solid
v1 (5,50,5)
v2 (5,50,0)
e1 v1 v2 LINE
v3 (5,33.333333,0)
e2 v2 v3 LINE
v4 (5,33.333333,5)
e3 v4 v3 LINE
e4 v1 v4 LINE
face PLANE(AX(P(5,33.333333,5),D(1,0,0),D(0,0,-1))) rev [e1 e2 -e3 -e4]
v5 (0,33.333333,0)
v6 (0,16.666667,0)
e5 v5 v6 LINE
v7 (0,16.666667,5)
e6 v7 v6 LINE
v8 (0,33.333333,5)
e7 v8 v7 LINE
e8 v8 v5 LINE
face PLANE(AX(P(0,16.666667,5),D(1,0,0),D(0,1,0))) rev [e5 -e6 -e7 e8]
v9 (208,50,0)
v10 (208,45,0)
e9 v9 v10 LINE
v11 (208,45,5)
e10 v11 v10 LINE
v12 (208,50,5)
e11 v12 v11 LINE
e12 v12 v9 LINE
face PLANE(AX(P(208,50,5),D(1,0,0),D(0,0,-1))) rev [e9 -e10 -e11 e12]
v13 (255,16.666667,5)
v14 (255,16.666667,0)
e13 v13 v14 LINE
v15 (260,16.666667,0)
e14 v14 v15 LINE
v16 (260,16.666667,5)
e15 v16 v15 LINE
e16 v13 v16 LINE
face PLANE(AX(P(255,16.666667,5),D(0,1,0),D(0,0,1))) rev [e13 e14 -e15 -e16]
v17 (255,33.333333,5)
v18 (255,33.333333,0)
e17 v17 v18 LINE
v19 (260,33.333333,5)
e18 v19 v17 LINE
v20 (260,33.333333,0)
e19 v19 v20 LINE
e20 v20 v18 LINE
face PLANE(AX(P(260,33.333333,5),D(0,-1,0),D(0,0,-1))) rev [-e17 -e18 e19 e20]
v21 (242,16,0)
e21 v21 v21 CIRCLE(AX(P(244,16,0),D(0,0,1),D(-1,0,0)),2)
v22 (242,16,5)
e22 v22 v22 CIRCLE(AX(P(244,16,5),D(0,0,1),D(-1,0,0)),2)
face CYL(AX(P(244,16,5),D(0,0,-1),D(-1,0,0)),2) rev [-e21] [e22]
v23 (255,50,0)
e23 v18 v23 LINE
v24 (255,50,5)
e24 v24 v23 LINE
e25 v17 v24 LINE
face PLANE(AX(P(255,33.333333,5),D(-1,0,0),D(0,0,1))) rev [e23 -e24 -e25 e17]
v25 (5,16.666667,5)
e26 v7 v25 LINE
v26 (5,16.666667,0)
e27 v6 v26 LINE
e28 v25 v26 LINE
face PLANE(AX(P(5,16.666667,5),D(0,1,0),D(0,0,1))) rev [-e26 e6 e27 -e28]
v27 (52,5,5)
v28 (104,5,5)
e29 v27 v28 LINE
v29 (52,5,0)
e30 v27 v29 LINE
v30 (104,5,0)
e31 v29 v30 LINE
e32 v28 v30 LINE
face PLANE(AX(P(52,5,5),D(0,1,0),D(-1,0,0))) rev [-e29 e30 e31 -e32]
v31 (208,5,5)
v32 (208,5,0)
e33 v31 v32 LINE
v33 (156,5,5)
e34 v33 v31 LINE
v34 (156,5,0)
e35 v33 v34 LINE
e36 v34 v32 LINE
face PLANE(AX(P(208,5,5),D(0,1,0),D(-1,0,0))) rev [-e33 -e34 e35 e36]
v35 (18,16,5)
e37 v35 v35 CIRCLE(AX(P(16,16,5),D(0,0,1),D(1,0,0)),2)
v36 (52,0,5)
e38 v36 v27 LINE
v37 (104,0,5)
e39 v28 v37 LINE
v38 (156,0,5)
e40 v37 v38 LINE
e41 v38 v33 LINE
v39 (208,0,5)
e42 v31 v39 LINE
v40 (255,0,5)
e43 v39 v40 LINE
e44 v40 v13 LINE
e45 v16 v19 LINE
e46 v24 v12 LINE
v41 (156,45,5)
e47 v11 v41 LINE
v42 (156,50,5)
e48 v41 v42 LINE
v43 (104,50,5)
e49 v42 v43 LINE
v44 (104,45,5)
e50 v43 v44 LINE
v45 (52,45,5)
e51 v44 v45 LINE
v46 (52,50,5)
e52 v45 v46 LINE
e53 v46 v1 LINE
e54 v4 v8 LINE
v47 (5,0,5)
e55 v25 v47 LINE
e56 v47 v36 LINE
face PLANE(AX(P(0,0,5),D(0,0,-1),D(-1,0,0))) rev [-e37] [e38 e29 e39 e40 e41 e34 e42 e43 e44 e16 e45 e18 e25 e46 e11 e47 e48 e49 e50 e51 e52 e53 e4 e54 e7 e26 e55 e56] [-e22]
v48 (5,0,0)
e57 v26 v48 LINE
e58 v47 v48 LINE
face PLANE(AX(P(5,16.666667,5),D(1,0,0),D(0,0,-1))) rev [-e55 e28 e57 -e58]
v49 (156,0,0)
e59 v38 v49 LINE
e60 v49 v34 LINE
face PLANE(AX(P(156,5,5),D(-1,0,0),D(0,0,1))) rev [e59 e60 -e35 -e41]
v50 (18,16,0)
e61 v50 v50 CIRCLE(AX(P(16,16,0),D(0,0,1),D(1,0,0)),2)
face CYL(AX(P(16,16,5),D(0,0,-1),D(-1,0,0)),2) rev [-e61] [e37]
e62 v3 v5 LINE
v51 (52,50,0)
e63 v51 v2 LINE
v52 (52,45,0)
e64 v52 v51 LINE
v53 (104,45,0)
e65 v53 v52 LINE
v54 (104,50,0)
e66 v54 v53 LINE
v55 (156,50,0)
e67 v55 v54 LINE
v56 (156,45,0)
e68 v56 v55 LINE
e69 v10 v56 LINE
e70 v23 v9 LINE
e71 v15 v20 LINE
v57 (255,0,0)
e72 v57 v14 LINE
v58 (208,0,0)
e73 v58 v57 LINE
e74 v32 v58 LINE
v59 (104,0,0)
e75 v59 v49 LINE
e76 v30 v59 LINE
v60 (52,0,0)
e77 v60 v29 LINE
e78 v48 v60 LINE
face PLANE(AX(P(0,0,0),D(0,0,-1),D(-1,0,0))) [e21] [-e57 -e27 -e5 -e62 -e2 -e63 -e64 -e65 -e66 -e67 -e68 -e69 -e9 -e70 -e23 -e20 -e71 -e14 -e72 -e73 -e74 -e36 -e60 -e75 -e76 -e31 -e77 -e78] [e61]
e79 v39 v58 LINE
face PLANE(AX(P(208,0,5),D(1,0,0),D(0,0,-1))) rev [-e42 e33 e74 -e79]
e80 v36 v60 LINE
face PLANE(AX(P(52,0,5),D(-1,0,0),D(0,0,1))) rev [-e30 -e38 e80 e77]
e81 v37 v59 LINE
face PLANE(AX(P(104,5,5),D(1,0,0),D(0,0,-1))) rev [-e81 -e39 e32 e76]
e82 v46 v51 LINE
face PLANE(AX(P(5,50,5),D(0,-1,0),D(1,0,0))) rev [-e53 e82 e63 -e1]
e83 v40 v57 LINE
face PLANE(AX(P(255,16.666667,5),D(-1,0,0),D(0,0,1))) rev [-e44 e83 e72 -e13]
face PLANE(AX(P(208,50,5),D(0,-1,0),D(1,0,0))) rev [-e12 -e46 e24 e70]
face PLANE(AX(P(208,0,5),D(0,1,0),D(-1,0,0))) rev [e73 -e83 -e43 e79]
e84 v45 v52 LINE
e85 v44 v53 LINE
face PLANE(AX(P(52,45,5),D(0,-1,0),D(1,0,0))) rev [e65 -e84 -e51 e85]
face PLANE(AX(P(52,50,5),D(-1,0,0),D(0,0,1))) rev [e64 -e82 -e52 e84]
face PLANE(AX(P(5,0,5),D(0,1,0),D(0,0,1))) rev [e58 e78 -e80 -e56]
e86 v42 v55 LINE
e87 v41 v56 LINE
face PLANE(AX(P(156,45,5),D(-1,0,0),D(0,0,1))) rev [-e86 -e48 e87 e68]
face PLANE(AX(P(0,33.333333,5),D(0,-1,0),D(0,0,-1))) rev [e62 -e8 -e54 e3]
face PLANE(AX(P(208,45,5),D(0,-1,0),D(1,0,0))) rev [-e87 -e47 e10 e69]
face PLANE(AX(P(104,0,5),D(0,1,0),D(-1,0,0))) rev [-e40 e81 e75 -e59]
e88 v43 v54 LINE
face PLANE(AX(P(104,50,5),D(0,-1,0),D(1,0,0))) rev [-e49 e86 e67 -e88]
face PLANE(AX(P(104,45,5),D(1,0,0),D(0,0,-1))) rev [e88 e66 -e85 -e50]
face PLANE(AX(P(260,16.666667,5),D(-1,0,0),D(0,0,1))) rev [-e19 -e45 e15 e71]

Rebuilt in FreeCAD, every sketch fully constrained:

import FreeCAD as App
import Part
import Sketcher

V = App.Vector

doc = App.newDocument("Part")
body = doc.addObject("PartDesign::Body", "Body")

# Sketch on XY plane
sketch1 = body.newObject("Sketcher::SketchObject", "Sketch")
sketch1.AttachmentSupport = (doc.getObject("XY_Plane"), [""])
sketch1.MapMode = "FlatFace"
sketch1.addGeometry([
    Part.LineSegment(V(5, 33.3, 0), V(0, 33.3, 0)),  # 0
    Part.LineSegment(V(0, 33.3, 0), V(0, 16.7, 0)),  # 1
    Part.LineSegment(V(0, 16.7, 0), V(5, 16.7, 0)),  # 2
    Part.LineSegment(V(5, 16.7, 0), V(5, 0, 0)),  # 3
    Part.LineSegment(V(5, 0, 0), V(52, 0, 0)),  # 4
    Part.LineSegment(V(52, 0, 0), V(52, 5, 0)),  # 5
    Part.LineSegment(V(52, 5, 0), V(104, 5, 0)),  # 6
    Part.LineSegment(V(104, 5, 0), V(104, 0, 0)),  # 7
    Part.LineSegment(V(104, 0, 0), V(156, 0, 0)),  # 8
    Part.LineSegment(V(156, 0, 0), V(156, 5, 0)),  # 9
    Part.LineSegment(V(156, 5, 0), V(208, 5, 0)),  # 10
    Part.LineSegment(V(208, 5, 0), V(208, 0, 0)),  # 11
    Part.LineSegment(V(208, 0, 0), V(255, 0, 0)),  # 12
    Part.LineSegment(V(255, 0, 0), V(255, 16.7, 0)),  # 13
    Part.LineSegment(V(255, 16.7, 0), V(260, 16.7, 0)),  # 14
    Part.LineSegment(V(260, 16.7, 0), V(260, 33.3, 0)),  # 15
    Part.LineSegment(V(260, 33.3, 0), V(255, 33.3, 0)),  # 16
    Part.LineSegment(V(255, 33.3, 0), V(255, 50, 0)),  # 17
    Part.LineSegment(V(255, 50, 0), V(208, 50, 0)),  # 18
    Part.LineSegment(V(208, 50, 0), V(208, 45, 0)),  # 19
    Part.LineSegment(V(208, 45, 0), V(156, 45, 0)),  # 20
    Part.LineSegment(V(156, 45, 0), V(156, 50, 0)),  # 21
    Part.LineSegment(V(156, 50, 0), V(104, 50, 0)),  # 22
    Part.LineSegment(V(104, 50, 0), V(104, 45, 0)),  # 23
    Part.LineSegment(V(104, 45, 0), V(52, 45, 0)),  # 24
    Part.LineSegment(V(52, 45, 0), V(52, 50, 0)),  # 25
    Part.LineSegment(V(52, 50, 0), V(5, 50, 0)),  # 26
    Part.LineSegment(V(5, 50, 0), V(5, 33.3, 0)),  # 27
    Part.Circle(V(244, 16, 0), V(0, 0, 1), 2),  # 28
    Part.Circle(V(16, 16, 0), V(0, 0, 1), 2),  # 29
], False)
sketch1.addConstraint([
    Sketcher.Constraint("Coincident", 0, 2, 1, 1),
    Sketcher.Constraint("Coincident", 1, 2, 2, 1),
    Sketcher.Constraint("Coincident", 2, 2, 3, 1),
    Sketcher.Constraint("Coincident", 3, 2, 4, 1),
    Sketcher.Constraint("Coincident", 4, 2, 5, 1),
    Sketcher.Constraint("Coincident", 5, 2, 6, 1),
    Sketcher.Constraint("Coincident", 6, 2, 7, 1),
    Sketcher.Constraint("Coincident", 7, 2, 8, 1),
    Sketcher.Constraint("Coincident", 8, 2, 9, 1),
    Sketcher.Constraint("Coincident", 9, 2, 10, 1),
    Sketcher.Constraint("Coincident", 10, 2, 11, 1),
    Sketcher.Constraint("Coincident", 11, 2, 12, 1),
    Sketcher.Constraint("Coincident", 12, 2, 13, 1),
    Sketcher.Constraint("Coincident", 13, 2, 14, 1),
    Sketcher.Constraint("Coincident", 14, 2, 15, 1),
    Sketcher.Constraint("Coincident", 15, 2, 16, 1),
    Sketcher.Constraint("Coincident", 16, 2, 17, 1),
    Sketcher.Constraint("Coincident", 17, 2, 18, 1),
    Sketcher.Constraint("Coincident", 18, 2, 19, 1),
    Sketcher.Constraint("Coincident", 19, 2, 20, 1),
    Sketcher.Constraint("Coincident", 20, 2, 21, 1),
    Sketcher.Constraint("Coincident", 21, 2, 22, 1),
    Sketcher.Constraint("Coincident", 22, 2, 23, 1),
    Sketcher.Constraint("Coincident", 23, 2, 24, 1),
    Sketcher.Constraint("Coincident", 24, 2, 25, 1),
    Sketcher.Constraint("Coincident", 25, 2, 26, 1),
    Sketcher.Constraint("Coincident", 26, 2, 27, 1),
    Sketcher.Constraint("Coincident", 27, 2, 0, 1),
    Sketcher.Constraint("Horizontal", 0),
    Sketcher.Constraint("Vertical", 1),
    Sketcher.Constraint("Horizontal", 2),
    Sketcher.Constraint("Vertical", 3),
    Sketcher.Constraint("Horizontal", 4),
    Sketcher.Constraint("Vertical", 5),
    Sketcher.Constraint("Horizontal", 6),
    Sketcher.Constraint("Vertical", 7),
    Sketcher.Constraint("Horizontal", 8),
    Sketcher.Constraint("Vertical", 9),
    Sketcher.Constraint("Horizontal", 10),
    Sketcher.Constraint("Vertical", 11),
    Sketcher.Constraint("Horizontal", 12),
    Sketcher.Constraint("Vertical", 13),
    Sketcher.Constraint("Horizontal", 14),
    Sketcher.Constraint("Vertical", 15),
    Sketcher.Constraint("Horizontal", 16),
    Sketcher.Constraint("Vertical", 17),
    Sketcher.Constraint("Horizontal", 18),
    Sketcher.Constraint("Vertical", 19),
    Sketcher.Constraint("Horizontal", 20),
    Sketcher.Constraint("Vertical", 21),
    Sketcher.Constraint("Horizontal", 22),
    Sketcher.Constraint("Vertical", 23),
    Sketcher.Constraint("Horizontal", 24),
    Sketcher.Constraint("Vertical", 25),
    Sketcher.Constraint("Horizontal", 26),
    Sketcher.Constraint("Vertical", 27),
    Sketcher.Constraint("Equal", 28, 29),
    Sketcher.Constraint("PointOnObject", 0, 2, -2),
    Sketcher.Constraint("PointOnObject", 3, 2, -1),
    Sketcher.Constraint("PointOnObject", 7, 2, -1),
    Sketcher.Constraint("PointOnObject", 11, 2, -1),
    Sketcher.Constraint("Horizontal", 28, 3, 29, 3),
    Sketcher.Constraint("Horizontal", 6, 2, 9, 2),
    Sketcher.Constraint("Horizontal", 2, 2, 13, 2),
    Sketcher.Constraint("Horizontal", 0, 2, 15, 2),
    Sketcher.Constraint("Horizontal", 18, 2, 21, 2),
    Sketcher.Constraint("Horizontal", 20, 2, 23, 2),
    Sketcher.Constraint("Horizontal", 22, 2, 25, 2),
    Sketcher.Constraint("Vertical", 13, 2, 16, 2),
    Sketcher.Constraint("Vertical", 11, 2, 18, 2),
    Sketcher.Constraint("Vertical", 9, 2, 20, 2),
    Sketcher.Constraint("Vertical", 7, 2, 22, 2),
    Sketcher.Constraint("Vertical", 5, 2, 24, 2),
    Sketcher.Constraint("Vertical", 3, 2, 26, 2),
    Sketcher.Constraint("Equal", 6, 8),
    Sketcher.Constraint("Equal", 8, 10),
    Sketcher.Constraint("Equal", 4, 12),
    Sketcher.Constraint("Equal", 2, 14),
    Sketcher.Constraint("Equal", 1, 3),
    Sketcher.Constraint("Equal", 16, 5),
    Sketcher.Constraint("Equal", 15, 17),
    Sketcher.Constraint("Equal", 11, 19),
    Sketcher.Constraint("Diameter", 28, 4.0),
    Sketcher.Constraint("DistanceX", 0, 2, 0, 1, 5.0),
    Sketcher.Constraint("DistanceX", 4, 1, 4, 2, 47.0),
    Sketcher.Constraint("DistanceX", 6, 1, 6, 2, 52.0),
    Sketcher.Constraint("DistanceX", -1, 1, 28, 3, 244.0),
    Sketcher.Constraint("DistanceY", -1, 1, 28, 3, 16.0),
    Sketcher.Constraint("DistanceX", -1, 1, 29, 3, 16.0),
    Sketcher.Constraint("DistanceY", -1, 1, 17, 2, 50.0),
])
pad1 = body.newObject("PartDesign::Pad", "Pad")
pad1.Profile = sketch1
pad1.Length = 5

doc.recompute()
